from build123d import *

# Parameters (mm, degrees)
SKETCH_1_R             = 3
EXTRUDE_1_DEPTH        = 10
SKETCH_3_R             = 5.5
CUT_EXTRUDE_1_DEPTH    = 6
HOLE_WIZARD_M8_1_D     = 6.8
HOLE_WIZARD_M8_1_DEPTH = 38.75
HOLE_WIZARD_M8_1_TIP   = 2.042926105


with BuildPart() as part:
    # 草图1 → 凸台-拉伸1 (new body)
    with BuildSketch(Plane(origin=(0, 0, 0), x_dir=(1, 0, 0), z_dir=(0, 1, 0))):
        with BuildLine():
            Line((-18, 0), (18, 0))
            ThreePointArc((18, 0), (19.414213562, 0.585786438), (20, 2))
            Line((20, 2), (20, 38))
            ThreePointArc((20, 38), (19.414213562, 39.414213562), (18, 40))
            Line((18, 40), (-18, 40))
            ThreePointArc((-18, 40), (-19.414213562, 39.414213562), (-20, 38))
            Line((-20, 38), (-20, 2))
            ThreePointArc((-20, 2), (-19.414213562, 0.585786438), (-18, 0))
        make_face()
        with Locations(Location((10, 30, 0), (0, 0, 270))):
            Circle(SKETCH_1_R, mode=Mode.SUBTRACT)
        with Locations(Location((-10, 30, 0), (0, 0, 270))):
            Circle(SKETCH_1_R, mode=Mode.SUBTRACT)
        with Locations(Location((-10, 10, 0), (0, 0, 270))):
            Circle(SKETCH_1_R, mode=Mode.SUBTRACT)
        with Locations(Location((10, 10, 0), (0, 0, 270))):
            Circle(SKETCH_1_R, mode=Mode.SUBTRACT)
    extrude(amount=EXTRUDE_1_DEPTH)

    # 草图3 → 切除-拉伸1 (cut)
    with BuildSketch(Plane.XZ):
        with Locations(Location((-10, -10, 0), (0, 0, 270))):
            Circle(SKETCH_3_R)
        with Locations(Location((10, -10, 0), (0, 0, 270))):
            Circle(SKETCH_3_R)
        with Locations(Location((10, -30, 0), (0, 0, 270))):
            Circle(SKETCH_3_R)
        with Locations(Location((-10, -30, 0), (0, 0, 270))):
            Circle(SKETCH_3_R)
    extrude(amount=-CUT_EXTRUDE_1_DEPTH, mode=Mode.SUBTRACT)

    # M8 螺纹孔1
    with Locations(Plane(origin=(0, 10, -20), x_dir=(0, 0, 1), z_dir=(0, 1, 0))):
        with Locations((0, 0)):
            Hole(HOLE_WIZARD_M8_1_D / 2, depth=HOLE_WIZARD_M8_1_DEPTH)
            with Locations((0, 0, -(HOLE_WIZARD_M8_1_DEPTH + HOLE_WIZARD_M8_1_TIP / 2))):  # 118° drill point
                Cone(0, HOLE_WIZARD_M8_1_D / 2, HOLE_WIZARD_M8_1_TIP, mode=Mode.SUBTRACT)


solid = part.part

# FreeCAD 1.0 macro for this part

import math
import FreeCAD as App
import Part
import Sketcher
from FreeCAD import Vector
Q = App.Units.Quantity

doc = App.newDocument("Part")
params = doc.addObject("Spreadsheet::Sheet", "Params")
for row, (alias, value) in enumerate([
    ("sketch1_diameter", "6 mm"),
    ("sketch1_radius", "2 mm"),
    ("sketch1_width", "36 mm"),
    ("pad1_length", "10 mm"),
    ("sketch2_diameter", "11 mm"),
    ("pocket1_length", "6 mm"),
    ("sketch3_diameter", "6.8 mm"),
    ("hole_diameter", "6.8 mm"),
    ("hole_depth", "38.75 mm"),
], start=1):
    params.set(f"A{row}", alias)
    params.set(f"B{row}", "=" + value)
    params.setAlias(f"B{row}", alias)

body = doc.addObject("PartDesign::Body", "Body")

# Sketch on XZ plane
sketch1 = doc.addObject("Sketcher::SketchObject", "Sketch")
body.addObject(sketch1)
sketch1.AttachmentSupport = (doc.XZ_Plane, [""])
sketch1.MapMode = "FlatFace"
sketch1.addGeometry(Part.LineSegment(Vector(-18, 0, 0), Vector(18, 0, 0)), False)
sketch1.addGeometry(Part.ArcOfCircle(Part.Circle(Vector(18, -2, 0), Vector(0, 0, 1), 2), math.radians(0), math.radians(90)), False)
sketch1.addGeometry(Part.LineSegment(Vector(20, -2, 0), Vector(20, -38, 0)), False)
sketch1.addGeometry(Part.ArcOfCircle(Part.Circle(Vector(18, -38, 0), Vector(0, 0, 1), 2), math.radians(-90), math.radians(0)), False)
sketch1.addGeometry(Part.LineSegment(Vector(18, -40, 0), Vector(-18, -40, 0)), False)
sketch1.addGeometry(Part.ArcOfCircle(Part.Circle(Vector(-18, -38, 0), Vector(0, 0, 1), 2), math.radians(-180), math.radians(-90)), False)
sketch1.addGeometry(Part.LineSegment(Vector(-20, -38, 0), Vector(-20, -2, 0)), False)
sketch1.addGeometry(Part.ArcOfCircle(Part.Circle(Vector(-18, -2, 0), Vector(0, 0, 1), 2), math.radians(90), math.radians(180)), False)
sketch1.addGeometry(Part.Circle(Vector(-10, -10, 0), Vector(0, 0, 1), 3), False)
sketch1.addGeometry(Part.Circle(Vector(10, -10, 0), Vector(0, 0, 1), 3), False)
sketch1.addGeometry(Part.Circle(Vector(-10, -30, 0), Vector(0, 0, 1), 3), False)
sketch1.addGeometry(Part.Circle(Vector(10, -30, 0), Vector(0, 0, 1), 3), False)
sketch1.addConstraint(Sketcher.Constraint("Tangent", 0, 2, 1, 2))
sketch1.addConstraint(Sketcher.Constraint("Tangent", 1, 1, 2, 1))
sketch1.addConstraint(Sketcher.Constraint("Tangent", 2, 2, 3, 2))
sketch1.addConstraint(Sketcher.Constraint("Tangent", 3, 1, 4, 1))
sketch1.addConstraint(Sketcher.Constraint("Tangent", 4, 2, 5, 2))
sketch1.addConstraint(Sketcher.Constraint("Tangent", 5, 1, 6, 1))
sketch1.addConstraint(Sketcher.Constraint("Tangent", 6, 2, 7, 2))
sketch1.addConstraint(Sketcher.Constraint("Tangent", 7, 1, 0, 1))
sketch1.addConstraint(Sketcher.Constraint("Horizontal", 0))
sketch1.addConstraint(Sketcher.Constraint("Vertical", 2))
sketch1.addConstraint(Sketcher.Constraint("Horizontal", 4))
sketch1.addConstraint(Sketcher.Constraint("Vertical", 6))
sketch1.addConstraint(Sketcher.Constraint("Equal", 1, 3))
sketch1.addConstraint(Sketcher.Constraint("Equal", 3, 5))
sketch1.addConstraint(Sketcher.Constraint("Equal", 5, 7))
sketch1.addConstraint(Sketcher.Constraint("Equal", 8, 9))
sketch1.addConstraint(Sketcher.Constraint("Equal", 9, 10))
sketch1.addConstraint(Sketcher.Constraint("Equal", 10, 11))
sketch1.addConstraint(Sketcher.Constraint("Symmetric", 0, 2, 7, 1, -1, 1))
sketch1.addConstraint(Sketcher.Constraint("Symmetric", 8, 3, 9, 3, -2))
sketch1.addConstraint(Sketcher.Constraint("Symmetric", 10, 3, 11, 3, -2))
sketch1.addConstraint(Sketcher.Constraint("Vertical", 8, 3, 10, 3))
sketch1.addConstraint(Sketcher.Constraint("Equal", 4, 2))
sketch1.addConstraint(Sketcher.Constraint("Diameter", 8, Q("6 mm")))
sketch1.addConstraint(Sketcher.Constraint("Radius", 1, Q("2 mm")))
sketch1.addConstraint(Sketcher.Constraint("DistanceX", 0, 1, 0, 2, Q("36 mm")))
sketch1.addConstraint(Sketcher.Constraint("DistanceX", 8, 3, -1, 1, Q("10 mm")))
sketch1.addConstraint(Sketcher.Constraint("DistanceY", 8, 3, -1, 1, Q("10 mm")))
sketch1.addConstraint(Sketcher.Constraint("DistanceY", 10, 3, -1, 1, Q("30 mm")))
sketch1.setExpression("Constraints[23]", "Params.sketch1_diameter")
sketch1.setExpression("Constraints[24]", "Params.sketch1_radius")
sketch1.setExpression("Constraints[25]", "Params.sketch1_width")
pad1 = doc.addObject("PartDesign::Pad", "Pad")
body.addObject(pad1)
pad1.Profile = sketch1
pad1.setExpression("Length", "Params.pad1_length")
pad1.Reversed = True

# Sketch on XZ plane
sketch2 = doc.addObject("Sketcher::SketchObject", "Sketch001")
body.addObject(sketch2)
sketch2.AttachmentSupport = (doc.XZ_Plane, [""])
sketch2.MapMode = "FlatFace"
sketch2.addGeometry(Part.Circle(Vector(-10, -10, 0), Vector(0, 0, 1), 6), False)
sketch2.addGeometry(Part.Circle(Vector(10, -10, 0), Vector(0, 0, 1), 6), False)
sketch2.addGeometry(Part.Circle(Vector(10, -30, 0), Vector(0, 0, 1), 6), False)
sketch2.addGeometry(Part.Circle(Vector(-10, -30, 0), Vector(0, 0, 1), 6), False)
sketch2.addConstraint(Sketcher.Constraint("Equal", 0, 1))
sketch2.addConstraint(Sketcher.Constraint("Equal", 1, 2))
sketch2.addConstraint(Sketcher.Constraint("Equal", 2, 3))
sketch2.addConstraint(Sketcher.Constraint("Symmetric", 0, 3, 1, 3, -2))
sketch2.addConstraint(Sketcher.Constraint("Symmetric", 2, 3, 3, 3, -2))
sketch2.addConstraint(Sketcher.Constraint("Vertical", 1, 3, 2, 3))
sketch2.addConstraint(Sketcher.Constraint("Diameter", 0, Q("11 mm")))
sketch2.addConstraint(Sketcher.Constraint("DistanceX", 0, 3, -1, 1, Q("10 mm")))
sketch2.addConstraint(Sketcher.Constraint("DistanceY", 0, 3, -1, 1, Q("10 mm")))
sketch2.addConstraint(Sketcher.Constraint("DistanceY", 2, 3, -1, 1, Q("30 mm")))
sketch2.setExpression("Constraints[6]", "Params.sketch2_diameter")
pocket1 = doc.addObject("PartDesign::Pocket", "Pocket")
body.addObject(pocket1)
pocket1.Profile = sketch2
pocket1.setExpression("Length", "Params.pocket1_length")

# Sketch on XZ plane
sketch3 = doc.addObject("Sketcher::SketchObject", "Sketch002")
body.addObject(sketch3)
sketch3.AttachmentSupport = (doc.XZ_Plane, [""])
sketch3.MapMode = "FlatFace"
sketch3.AttachmentOffset = App.Placement(Vector(0, 0, -10), App.Rotation())
sketch3.addGeometry(Part.Circle(Vector(0, -20, 0), Vector(0, 0, 1), 3.4), False)
sketch3.addConstraint(Sketcher.Constraint("PointOnObject", 0, 3, -2))
sketch3.addConstraint(Sketcher.Constraint("Diameter", 0, Q("6.8 mm")))
sketch3.addConstraint(Sketcher.Constraint("DistanceY", 0, 3, -1, 1, Q("20 mm")))
sketch3.setExpression("Constraints[1]", "Params.sketch3_diameter")
doc.recompute()
hole = doc.addObject("PartDesign::Hole", "Hole")
body.addObject(hole)
hole.Profile = sketch3
hole.ThreadType = "None"
hole.setExpression("Diameter", "Params.hole_diameter")
hole.DepthType = "Dimension"
hole.setExpression("Depth", "Params.hole_depth")
hole.DrillPoint = "Angled"
hole.DrillPointAngle = 118
hole.Reversed = True

doc.recompute()
